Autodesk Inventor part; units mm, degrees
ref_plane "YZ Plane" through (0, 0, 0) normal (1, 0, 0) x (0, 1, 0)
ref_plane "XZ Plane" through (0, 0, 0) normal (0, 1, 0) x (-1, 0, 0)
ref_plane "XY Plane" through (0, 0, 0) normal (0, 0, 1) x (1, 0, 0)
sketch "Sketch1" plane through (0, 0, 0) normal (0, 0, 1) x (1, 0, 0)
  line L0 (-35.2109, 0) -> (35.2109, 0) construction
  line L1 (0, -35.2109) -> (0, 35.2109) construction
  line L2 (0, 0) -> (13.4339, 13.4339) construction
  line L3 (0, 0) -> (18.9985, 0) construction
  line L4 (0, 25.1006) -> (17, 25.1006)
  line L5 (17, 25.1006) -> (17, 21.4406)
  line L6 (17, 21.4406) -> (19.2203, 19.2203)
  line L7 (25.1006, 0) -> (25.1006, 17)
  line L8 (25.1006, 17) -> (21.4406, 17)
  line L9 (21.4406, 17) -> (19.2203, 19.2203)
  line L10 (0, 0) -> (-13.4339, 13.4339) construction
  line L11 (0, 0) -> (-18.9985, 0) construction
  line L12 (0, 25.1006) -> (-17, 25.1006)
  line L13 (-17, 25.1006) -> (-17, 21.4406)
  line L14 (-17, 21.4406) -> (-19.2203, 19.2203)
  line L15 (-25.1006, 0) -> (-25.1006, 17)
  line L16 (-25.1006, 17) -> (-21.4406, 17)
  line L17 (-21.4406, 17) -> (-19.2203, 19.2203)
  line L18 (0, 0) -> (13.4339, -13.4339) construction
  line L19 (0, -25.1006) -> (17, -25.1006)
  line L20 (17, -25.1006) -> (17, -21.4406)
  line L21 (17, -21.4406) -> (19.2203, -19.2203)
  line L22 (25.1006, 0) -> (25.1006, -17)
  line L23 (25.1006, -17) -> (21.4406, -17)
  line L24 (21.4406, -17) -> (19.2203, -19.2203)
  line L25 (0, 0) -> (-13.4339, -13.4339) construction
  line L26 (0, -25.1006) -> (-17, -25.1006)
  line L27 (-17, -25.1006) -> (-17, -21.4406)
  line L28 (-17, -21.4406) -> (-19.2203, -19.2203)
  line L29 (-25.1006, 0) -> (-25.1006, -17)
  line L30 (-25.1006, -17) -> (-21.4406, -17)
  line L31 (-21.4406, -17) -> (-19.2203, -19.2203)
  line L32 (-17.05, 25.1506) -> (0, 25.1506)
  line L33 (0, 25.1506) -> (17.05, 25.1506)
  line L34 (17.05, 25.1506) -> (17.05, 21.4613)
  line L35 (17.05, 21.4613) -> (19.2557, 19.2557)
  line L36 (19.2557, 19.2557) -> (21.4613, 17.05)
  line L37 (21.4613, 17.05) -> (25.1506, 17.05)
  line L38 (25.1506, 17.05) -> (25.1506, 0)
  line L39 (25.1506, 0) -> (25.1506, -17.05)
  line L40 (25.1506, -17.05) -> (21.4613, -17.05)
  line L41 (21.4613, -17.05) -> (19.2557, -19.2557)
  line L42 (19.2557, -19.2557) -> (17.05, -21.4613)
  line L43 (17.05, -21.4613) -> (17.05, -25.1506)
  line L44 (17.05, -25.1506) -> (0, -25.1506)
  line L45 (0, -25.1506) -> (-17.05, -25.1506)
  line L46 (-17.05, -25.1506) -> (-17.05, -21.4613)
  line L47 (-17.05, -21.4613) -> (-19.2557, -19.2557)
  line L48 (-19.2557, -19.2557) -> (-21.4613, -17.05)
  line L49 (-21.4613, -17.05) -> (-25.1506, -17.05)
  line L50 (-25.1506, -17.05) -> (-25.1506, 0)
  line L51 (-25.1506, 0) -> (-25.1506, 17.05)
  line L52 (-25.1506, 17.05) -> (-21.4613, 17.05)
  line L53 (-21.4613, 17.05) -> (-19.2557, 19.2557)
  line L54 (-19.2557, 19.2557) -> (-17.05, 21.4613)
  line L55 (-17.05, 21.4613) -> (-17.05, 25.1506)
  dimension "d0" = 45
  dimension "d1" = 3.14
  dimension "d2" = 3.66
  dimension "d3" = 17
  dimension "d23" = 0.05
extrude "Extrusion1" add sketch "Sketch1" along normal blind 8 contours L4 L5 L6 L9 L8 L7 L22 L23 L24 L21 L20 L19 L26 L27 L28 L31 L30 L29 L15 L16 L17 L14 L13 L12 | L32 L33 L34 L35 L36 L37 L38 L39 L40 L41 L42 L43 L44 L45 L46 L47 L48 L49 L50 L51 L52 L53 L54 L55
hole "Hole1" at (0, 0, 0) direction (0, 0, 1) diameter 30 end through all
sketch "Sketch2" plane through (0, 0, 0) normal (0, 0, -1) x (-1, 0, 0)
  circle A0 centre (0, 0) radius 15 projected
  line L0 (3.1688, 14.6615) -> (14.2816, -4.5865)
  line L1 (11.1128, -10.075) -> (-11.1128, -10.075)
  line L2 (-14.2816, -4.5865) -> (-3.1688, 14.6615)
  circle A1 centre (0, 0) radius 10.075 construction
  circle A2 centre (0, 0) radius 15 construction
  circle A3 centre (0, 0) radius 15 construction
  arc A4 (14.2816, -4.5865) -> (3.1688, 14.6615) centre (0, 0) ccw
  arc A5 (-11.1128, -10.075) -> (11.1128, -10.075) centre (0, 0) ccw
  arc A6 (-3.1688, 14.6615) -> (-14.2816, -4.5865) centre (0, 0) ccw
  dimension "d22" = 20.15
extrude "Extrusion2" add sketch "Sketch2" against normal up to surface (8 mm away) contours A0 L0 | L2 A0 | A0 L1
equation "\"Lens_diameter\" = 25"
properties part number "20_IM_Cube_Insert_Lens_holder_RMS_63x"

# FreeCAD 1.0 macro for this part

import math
import FreeCAD as App
import Part
import Sketcher

V = App.Vector
Q = App.Units.Quantity


def add_polygon(sketch, points):
    """Adds a closed chain of lines whose ends are joined by coincident constraints."""
    first, n = sketch.GeometryCount, len(points)
    for a, b in zip(points, points[1:] + points[:1]):
        sketch.addGeometry(Part.LineSegment(App.Vector(*a, 0), App.Vector(*b, 0)), False)
    for i in range(n):
        sketch.addConstraint(Sketcher.Constraint("Coincident", first + i, 2, first + (i + 1) % n, 1))

doc = App.newDocument("Part")
body = doc.addObject("PartDesign::Body", "Body")

# Sketch on XY plane
sketch1 = doc.addObject("Sketcher::SketchObject", "Sketch")
body.addObject(sketch1)
sketch1.AttachmentSupport = (doc.XY_Plane, [""])
sketch1.MapMode = "FlatFace"
add_polygon(sketch1, [(-17.1, 25.2), (-17.1, 21.5), (-19.3, 19.3), (-21.5, 17.1), (-25.2, 17.1), (-25.2, -17.1), (-21.5, -17.1), (-19.3, -19.3), (-17.1, -21.5), (-17.1, -25.2), (17.1, -25.2), (17.1, -21.5), (19.3, -19.3), (21.5, -17.1), (25.2, -17.1), (25.2, 17.1), (21.5, 17.1), (19.3, 19.3), (17.1, 21.5), (17.1, 25.2)])  # lines 0-19
sketch1.addConstraint([
    Sketcher.Constraint("Vertical", 0),
    Sketcher.Constraint("Horizontal", 3),
    Sketcher.Constraint("Vertical", 4),
    Sketcher.Constraint("Horizontal", 5),
    Sketcher.Constraint("Vertical", 8),
    Sketcher.Constraint("Horizontal", 9),
    Sketcher.Constraint("Vertical", 10),
    Sketcher.Constraint("Horizontal", 13),
    Sketcher.Constraint("Vertical", 14),
    Sketcher.Constraint("Horizontal", 15),
    Sketcher.Constraint("Vertical", 18),
    Sketcher.Constraint("Horizontal", 19),
    Sketcher.Constraint("Symmetric", 0, 2, 10, 2, -1, 1),
    Sketcher.Constraint("Symmetric", 1, 2, 11, 2, -1, 1),
    Sketcher.Constraint("Symmetric", 2, 2, 12, 2, -1, 1),
    Sketcher.Constraint("Symmetric", 4, 2, 14, 2, -1, 1),
    Sketcher.Constraint("Symmetric", 6, 2, 16, 2, -1, 1),
    Sketcher.Constraint("Symmetric", 7, 2, 17, 2, -1, 1),
    Sketcher.Constraint("Symmetric", 7, 2, 10, 2, -2),
    Sketcher.Constraint("Symmetric", 6, 2, 11, 2, -2),
    Sketcher.Constraint("Symmetric", 5, 2, 12, 2, -2),
    Sketcher.Constraint("Parallel", 1, 2),
    Sketcher.Constraint("Perpendicular", 2, 6),
    Sketcher.Constraint("Perpendicular", 12, 16),
    Sketcher.Constraint("Equal", 15, 0),
    Sketcher.Constraint("Equal", 19, 4),
    Sketcher.Constraint("Equal", 0, 8),
    Sketcher.Constraint("Equal", 1, 2),
    Sketcher.Constraint("DistanceX", 9, 1, 9, 2, 34.1),
    Sketcher.Constraint("DistanceX", 3, 2, 3, 1, 3.6893),
    Sketcher.Constraint("DistanceX", 3, 2, 1, 2, 5.895),
])
pad1 = doc.addObject("PartDesign::Pad", "Pad")
body.addObject(pad1)
pad1.Profile = sketch1
pad1.Length = 8

# Sketch on XY plane
sketch2 = doc.addObject("Sketcher::SketchObject", "Sketch001")
body.addObject(sketch2)
sketch2.AttachmentSupport = (doc.XY_Plane, [""])
sketch2.MapMode = "FlatFace"
sketch2.addGeometry(Part.Circle(V(0, 0, 0), V(0, 0, 1), 15), False)
sketch2.addConstraint([
    Sketcher.Constraint("Coincident", 0, 3, -1, 1),
    Sketcher.Constraint("Diameter", 0, 30.0),
])
doc.recompute()
hole = doc.addObject("PartDesign::Hole", "Hole")
body.addObject(hole)
hole.Profile = sketch2
hole.ThreadType = "None"
hole.Diameter = 30
hole.DepthType = "ThroughAll"
hole.Reversed = True

# Sketch on XY plane
sketch3 = doc.addObject("Sketcher::SketchObject", "Sketch002")
body.addObject(sketch3)
sketch3.AttachmentSupport = (doc.XY_Plane, [""])
sketch3.MapMode = "FlatFace"
sketch3.addGeometry([
    Part.ArcOfCircle(Part.Circle(V(0, 0, 0), V(0, 0, 1), 15), math.radians(102), math.radians(198)),  # 0
    Part.LineSegment(V(-14, -5, 0), V(-3, 15, 0)),  # 1
    Part.LineSegment(V(14, -5, 0), V(3, 15, 0)),  # 2
    Part.ArcOfCircle(Part.Circle(V(0, 0, 0), V(0, 0, 1), 15), math.radians(-18), math.radians(78)),  # 3
    Part.ArcOfCircle(Part.Circle(V(0, 0, 0), V(0, 0, 1), 15), math.radians(-138), math.radians(-42)),  # 4
    Part.LineSegment(V(11, -10, 0), V(-11, -10, 0)),  # 5
], False)
sketch3.addConstraint([
    Sketcher.Constraint("Coincident", 0, 1, 1, 2),
    Sketcher.Constraint("Coincident", 1, 1, 0, 2),
    Sketcher.Constraint("Coincident", 2, 1, 3, 1),
    Sketcher.Constraint("Coincident", 3, 2, 2, 2),
    Sketcher.Constraint("Coincident", 4, 1, 5, 2),
    Sketcher.Constraint("Coincident", 5, 1, 4, 2),
    Sketcher.Constraint("Horizontal", 5),
    Sketcher.Constraint("Coincident", 0, 3, -1, 1),
    Sketcher.Constraint("Coincident", 3, 3, -1, 1),
    Sketcher.Constraint("Coincident", 4, 3, -1, 1),
    Sketcher.Constraint("Equal", 0, 3),
    Sketcher.Constraint("Equal", 3, 4),
    Sketcher.Constraint("Horizontal", 1, 1, 2, 1),
    Sketcher.Constraint("Horizontal", 0, 1, 3, 2),
    Sketcher.Constraint("Radius", 0, 15.0),
    Sketcher.Constraint("Angle", 1, Q("60 deg")),
    Sketcher.Constraint("DistanceX", 5, 2, 5, 1, 22.2256),
    Sketcher.Constraint("DistanceY", 1, 1, 0, 1, 19.248),
])
pad2 = doc.addObject("PartDesign::Pad", "Pad001")
body.addObject(pad2)
pad2.Profile = sketch3
pad2.Length = 8

doc.recompute()
